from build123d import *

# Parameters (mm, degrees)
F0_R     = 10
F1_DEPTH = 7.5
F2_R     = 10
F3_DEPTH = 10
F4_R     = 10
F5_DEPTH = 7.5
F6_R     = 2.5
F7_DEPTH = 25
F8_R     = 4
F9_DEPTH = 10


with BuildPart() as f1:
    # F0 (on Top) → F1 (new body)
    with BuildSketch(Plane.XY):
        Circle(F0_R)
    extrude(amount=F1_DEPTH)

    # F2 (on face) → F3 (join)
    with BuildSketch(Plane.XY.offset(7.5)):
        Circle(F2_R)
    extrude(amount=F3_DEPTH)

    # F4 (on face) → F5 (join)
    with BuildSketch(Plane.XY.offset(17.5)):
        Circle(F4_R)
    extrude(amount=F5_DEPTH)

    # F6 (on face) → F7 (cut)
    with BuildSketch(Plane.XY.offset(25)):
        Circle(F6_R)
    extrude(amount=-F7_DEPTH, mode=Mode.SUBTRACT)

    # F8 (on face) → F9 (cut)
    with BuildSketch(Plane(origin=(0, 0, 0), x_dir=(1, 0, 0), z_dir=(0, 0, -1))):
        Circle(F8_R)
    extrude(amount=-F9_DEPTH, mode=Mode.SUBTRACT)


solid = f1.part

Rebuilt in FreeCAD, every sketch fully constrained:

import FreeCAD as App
import Part
import Sketcher
Q = App.Units.Quantity

doc = App.newDocument("Part")
body = doc.addObject("PartDesign::Body", "Body")

sketch1 = doc.addObject("Sketcher::SketchObject", "Sketch")
body.addObject(sketch1)
sketch1.AttachmentSupport = (doc.XY_Plane, [""])
sketch1.MapMode = "FlatFace"
sketch1.addGeometry(Part.Circle(App.Vector(0, 0, 0), App.Vector(0, 0, 1), 10), False)
sketch1.addConstraint(Sketcher.Constraint("Coincident", 0, 3, -1, 1))
sketch1.addConstraint(Sketcher.Constraint("Diameter", 0, Q("20 mm")))
pad1 = doc.addObject("PartDesign::Pad", "Pad")
body.addObject(pad1)
pad1.Profile = sketch1
pad1.Length = 7.5

sketch2 = doc.addObject("Sketcher::SketchObject", "Sketch001")
body.addObject(sketch2)
sketch2.AttachmentSupport = (doc.XY_Plane, [""])
sketch2.MapMode = "FlatFace"
sketch2.AttachmentOffset = App.Placement(App.Vector(0, 0, 7.5), App.Rotation())
sketch2.addGeometry(Part.Circle(App.Vector(0, 0, 0), App.Vector(0, 0, 1), 10), False)
sketch2.addConstraint(Sketcher.Constraint("Coincident", 0, 3, -1, 1))
sketch2.addConstraint(Sketcher.Constraint("Diameter", 0, Q("20 mm")))
pad2 = doc.addObject("PartDesign::Pad", "Pad001")
body.addObject(pad2)
pad2.Profile = sketch2
pad2.Length = 10

sketch3 = doc.addObject("Sketcher::SketchObject", "Sketch002")
body.addObject(sketch3)
sketch3.AttachmentSupport = (doc.XY_Plane, [""])
sketch3.MapMode = "FlatFace"
sketch3.AttachmentOffset = App.Placement(App.Vector(0, 0, 17.5), App.Rotation())
sketch3.addGeometry(Part.Circle(App.Vector(0, 0, 0), App.Vector(0, 0, 1), 10), False)
sketch3.addConstraint(Sketcher.Constraint("Coincident", 0, 3, -1, 1))
sketch3.addConstraint(Sketcher.Constraint("Diameter", 0, Q("20 mm")))
pad3 = doc.addObject("PartDesign::Pad", "Pad002")
body.addObject(pad3)
pad3.Profile = sketch3
pad3.Length = 7.5

sketch4 = doc.addObject("Sketcher::SketchObject", "Sketch003")
body.addObject(sketch4)
sketch4.AttachmentSupport = (doc.XY_Plane, [""])
sketch4.MapMode = "FlatFace"
sketch4.AttachmentOffset = App.Placement(App.Vector(0, 0, 25), App.Rotation())
sketch4.addGeometry(Part.Circle(App.Vector(0, 0, 0), App.Vector(0, 0, 1), 2.5), False)
sketch4.addConstraint(Sketcher.Constraint("Coincident", 0, 3, -1, 1))
sketch4.addConstraint(Sketcher.Constraint("Diameter", 0, Q("5 mm")))
pocket1 = doc.addObject("PartDesign::Pocket", "Pocket")
body.addObject(pocket1)
pocket1.Profile = sketch4
pocket1.Length = 25

sketch5 = doc.addObject("Sketcher::SketchObject", "Sketch004")
body.addObject(sketch5)
sketch5.AttachmentSupport = (doc.XY_Plane, [""])
sketch5.MapMode = "FlatFace"
sketch5.addGeometry(Part.Circle(App.Vector(0, 0, 0), App.Vector(0, 0, 1), 4), False)
sketch5.addConstraint(Sketcher.Constraint("Coincident", 0, 3, -1, 1))
sketch5.addConstraint(Sketcher.Constraint("Diameter", 0, Q("8 mm")))
pocket2 = doc.addObject("PartDesign::Pocket", "Pocket001")
body.addObject(pocket2)
pocket2.Profile = sketch5
pocket2.Length = 10
pocket2.Reversed = True

doc.recompute()
